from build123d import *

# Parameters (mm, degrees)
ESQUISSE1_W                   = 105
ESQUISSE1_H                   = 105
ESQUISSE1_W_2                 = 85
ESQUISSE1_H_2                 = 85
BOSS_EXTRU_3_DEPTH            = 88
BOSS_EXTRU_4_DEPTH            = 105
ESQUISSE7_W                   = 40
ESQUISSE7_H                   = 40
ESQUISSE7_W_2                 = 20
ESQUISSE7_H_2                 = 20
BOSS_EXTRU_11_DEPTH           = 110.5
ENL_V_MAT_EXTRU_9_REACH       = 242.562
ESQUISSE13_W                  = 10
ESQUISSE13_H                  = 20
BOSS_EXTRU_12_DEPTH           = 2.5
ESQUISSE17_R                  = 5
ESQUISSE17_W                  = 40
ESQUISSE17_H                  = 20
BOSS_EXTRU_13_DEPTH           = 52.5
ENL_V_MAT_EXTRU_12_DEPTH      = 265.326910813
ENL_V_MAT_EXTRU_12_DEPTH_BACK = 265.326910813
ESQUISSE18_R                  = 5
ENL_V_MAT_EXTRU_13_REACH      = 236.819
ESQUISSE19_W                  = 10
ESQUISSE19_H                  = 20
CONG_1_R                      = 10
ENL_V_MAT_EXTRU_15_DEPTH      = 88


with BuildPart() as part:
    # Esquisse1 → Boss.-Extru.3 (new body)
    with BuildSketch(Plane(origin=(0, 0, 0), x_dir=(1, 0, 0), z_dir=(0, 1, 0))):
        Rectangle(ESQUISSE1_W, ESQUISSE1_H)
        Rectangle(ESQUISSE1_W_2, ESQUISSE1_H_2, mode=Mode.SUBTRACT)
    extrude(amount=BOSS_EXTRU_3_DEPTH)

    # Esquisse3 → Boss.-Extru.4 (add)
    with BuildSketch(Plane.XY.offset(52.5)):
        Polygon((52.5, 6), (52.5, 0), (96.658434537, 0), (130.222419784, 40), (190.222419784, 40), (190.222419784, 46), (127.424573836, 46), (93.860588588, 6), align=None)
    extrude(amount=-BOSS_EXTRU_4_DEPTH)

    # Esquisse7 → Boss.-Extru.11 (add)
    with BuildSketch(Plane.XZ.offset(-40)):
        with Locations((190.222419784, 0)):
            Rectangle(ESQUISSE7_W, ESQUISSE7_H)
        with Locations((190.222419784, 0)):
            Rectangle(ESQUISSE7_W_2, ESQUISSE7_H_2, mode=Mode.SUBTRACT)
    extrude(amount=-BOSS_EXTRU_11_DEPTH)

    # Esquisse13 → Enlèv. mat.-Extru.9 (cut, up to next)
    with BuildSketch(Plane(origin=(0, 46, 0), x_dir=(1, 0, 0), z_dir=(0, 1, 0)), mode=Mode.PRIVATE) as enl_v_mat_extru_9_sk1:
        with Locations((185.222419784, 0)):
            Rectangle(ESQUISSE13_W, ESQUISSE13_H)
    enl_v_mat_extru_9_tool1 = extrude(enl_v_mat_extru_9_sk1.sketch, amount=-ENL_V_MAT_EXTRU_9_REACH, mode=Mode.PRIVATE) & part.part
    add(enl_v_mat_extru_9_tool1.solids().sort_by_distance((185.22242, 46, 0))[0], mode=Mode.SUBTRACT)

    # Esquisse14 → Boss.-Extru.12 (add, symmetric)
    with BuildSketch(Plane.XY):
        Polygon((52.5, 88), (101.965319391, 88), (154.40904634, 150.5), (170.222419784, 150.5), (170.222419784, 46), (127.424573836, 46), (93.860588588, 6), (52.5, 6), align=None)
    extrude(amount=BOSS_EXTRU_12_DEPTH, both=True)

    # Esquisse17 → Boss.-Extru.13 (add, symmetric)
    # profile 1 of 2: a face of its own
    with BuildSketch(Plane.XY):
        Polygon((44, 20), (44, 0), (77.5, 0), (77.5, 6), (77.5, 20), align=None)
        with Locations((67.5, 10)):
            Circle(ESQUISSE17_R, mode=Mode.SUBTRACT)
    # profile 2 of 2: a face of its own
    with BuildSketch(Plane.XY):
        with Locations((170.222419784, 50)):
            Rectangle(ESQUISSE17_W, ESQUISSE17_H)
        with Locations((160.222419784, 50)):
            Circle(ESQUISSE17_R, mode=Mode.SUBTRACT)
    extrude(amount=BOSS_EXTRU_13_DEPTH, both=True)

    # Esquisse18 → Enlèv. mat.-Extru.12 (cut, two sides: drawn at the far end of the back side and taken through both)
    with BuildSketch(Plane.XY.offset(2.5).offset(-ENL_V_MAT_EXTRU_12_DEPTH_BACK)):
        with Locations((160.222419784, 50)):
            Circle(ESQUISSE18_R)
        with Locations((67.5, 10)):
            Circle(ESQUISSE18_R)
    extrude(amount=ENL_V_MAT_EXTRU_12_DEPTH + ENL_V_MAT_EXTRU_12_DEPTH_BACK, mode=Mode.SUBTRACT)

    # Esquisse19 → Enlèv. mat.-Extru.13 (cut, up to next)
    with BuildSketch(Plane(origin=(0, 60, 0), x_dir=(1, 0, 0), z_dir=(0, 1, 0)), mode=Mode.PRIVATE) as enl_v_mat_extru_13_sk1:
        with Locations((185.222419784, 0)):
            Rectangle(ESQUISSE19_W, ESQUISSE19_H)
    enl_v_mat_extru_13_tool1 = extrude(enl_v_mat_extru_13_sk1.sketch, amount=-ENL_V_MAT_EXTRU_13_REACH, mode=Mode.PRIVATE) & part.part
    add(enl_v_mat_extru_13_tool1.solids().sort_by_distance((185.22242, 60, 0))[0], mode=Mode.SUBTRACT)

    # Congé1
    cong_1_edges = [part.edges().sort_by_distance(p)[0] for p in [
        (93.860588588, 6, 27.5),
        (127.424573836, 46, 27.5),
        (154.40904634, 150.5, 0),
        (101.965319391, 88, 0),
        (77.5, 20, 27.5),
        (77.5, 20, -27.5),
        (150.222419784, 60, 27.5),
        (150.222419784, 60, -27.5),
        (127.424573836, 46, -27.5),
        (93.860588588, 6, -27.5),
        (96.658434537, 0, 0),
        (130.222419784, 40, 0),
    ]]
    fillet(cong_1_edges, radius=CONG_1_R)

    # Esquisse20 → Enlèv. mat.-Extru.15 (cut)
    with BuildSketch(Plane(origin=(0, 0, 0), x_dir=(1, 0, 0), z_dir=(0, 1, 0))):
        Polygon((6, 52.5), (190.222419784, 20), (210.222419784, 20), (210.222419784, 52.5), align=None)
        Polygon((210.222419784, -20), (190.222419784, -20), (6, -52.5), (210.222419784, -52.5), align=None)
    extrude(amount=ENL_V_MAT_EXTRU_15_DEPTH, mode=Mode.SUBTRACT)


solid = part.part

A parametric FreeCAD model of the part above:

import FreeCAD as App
import Part
import Sketcher
from FreeCAD import Vector
Q = App.Units.Quantity


def edges_at(feature, points):
    """Names of the edges that pass closest to the given points."""
    edges = feature.Shape.Edges
    near = lambda p: min(range(len(edges)), key=lambda i: edges[i].distToShape(Part.Vertex(*p))[0])
    return sorted({f"Edge{near(p) + 1}" for p in points})


def add_polygon(sketch, points):
    """Adds a closed chain of lines whose ends are joined by coincident constraints."""
    first, n = sketch.GeometryCount, len(points)
    for a, b in zip(points, points[1:] + points[:1]):
        sketch.addGeometry(Part.LineSegment(App.Vector(*a, 0), App.Vector(*b, 0)), False)
    for i in range(n):
        sketch.addConstraint(Sketcher.Constraint("Coincident", first + i, 2, first + (i + 1) % n, 1))

doc = App.newDocument("Part")
body = doc.addObject("PartDesign::Body", "Body")

# Sketch on XZ plane
sketch1 = doc.addObject("Sketcher::SketchObject", "Sketch")
body.addObject(sketch1)
sketch1.AttachmentSupport = (doc.XZ_Plane, [""])
sketch1.MapMode = "FlatFace"
add_polygon(sketch1, [(-52, -52), (-52, 52), (52, 52), (52, -52)])  # lines 0-3
add_polygon(sketch1, [(42, 42), (-42, 42), (-42, -42), (42, -42)])  # lines 4-7
sketch1.addConstraint([
    Sketcher.Constraint("Vertical", 0),
    Sketcher.Constraint("Horizontal", 1),
    Sketcher.Constraint("Vertical", 2),
    Sketcher.Constraint("Horizontal", 3),
    Sketcher.Constraint("Horizontal", 4),
    Sketcher.Constraint("Vertical", 5),
    Sketcher.Constraint("Horizontal", 6),
    Sketcher.Constraint("Vertical", 7),
    Sketcher.Constraint("Symmetric", 0, 2, 2, 2, -1, 1),
    Sketcher.Constraint("Symmetric", 4, 2, 6, 2, -1, 1),
    Sketcher.Constraint("Equal", 3, 0),
    Sketcher.Constraint("Equal", 6, 5),
    Sketcher.Constraint("DistanceX", 1, 1, 1, 2, Q("105 mm")),
    Sketcher.Constraint("DistanceX", 4, 2, 4, 1, Q("85 mm")),
])
pad1 = doc.addObject("PartDesign::Pad", "Pad")
body.addObject(pad1)
pad1.Profile = sketch1
pad1.Length = 88
pad1.Reversed = True

# Sketch on XY plane
sketch2 = doc.addObject("Sketcher::SketchObject", "Sketch001")
body.addObject(sketch2)
sketch2.AttachmentSupport = (doc.XY_Plane, [""])
sketch2.MapMode = "FlatFace"
sketch2.AttachmentOffset = App.Placement(Vector(0, 0, 52.5), App.Rotation())
add_polygon(sketch2, [(52, 6), (52, 0), (97, 0), (130, 40), (190, 40), (190, 46), (127, 46), (94, 6)])  # lines 0-7
sketch2.addConstraint([
    Sketcher.Constraint("Vertical", 0),
    Sketcher.Constraint("Horizontal", 1),
    Sketcher.Constraint("Horizontal", 3),
    Sketcher.Constraint("Vertical", 4),
    Sketcher.Constraint("Horizontal", 5),
    Sketcher.Constraint("Horizontal", 7),
    Sketcher.Constraint("PointOnObject", 0, 2, -1),
    Sketcher.Constraint("Parallel", 2, 6),
    Sketcher.Constraint("Equal", 0, 4),
    Sketcher.Constraint("DistanceX", 3, 1, 3, 2, Q("60 mm")),
    Sketcher.Constraint("DistanceY", 0, 2, 0, 1, Q("6 mm")),
    Sketcher.Constraint("Angle", 2, Q("50 deg")),
    Sketcher.Constraint("DistanceY", -1, 1, 2, 2, Q("40 mm")),
    Sketcher.Constraint("DistanceX", -1, 1, 0, 2, Q("52.5 mm")),
    Sketcher.Constraint("DistanceX", 7, 2, 7, 1, Q("41.360589 mm")),
    Sketcher.Constraint("DistanceX", 1, 1, 1, 2, Q("44.158435 mm")),
])
pad2 = doc.addObject("PartDesign::Pad", "Pad001")
body.addObject(pad2)
pad2.Profile = sketch2
pad2.Length = 105
pad2.Reversed = True

# Sketch on XZ plane
sketch3 = doc.addObject("Sketcher::SketchObject", "Sketch002")
body.addObject(sketch3)
sketch3.AttachmentSupport = (doc.XZ_Plane, [""])
sketch3.MapMode = "FlatFace"
sketch3.AttachmentOffset = App.Placement(Vector(0, 0, -40), App.Rotation())
add_polygon(sketch3, [(170, 20), (170, -20), (210, -20), (210, 20)])  # lines 0-3
add_polygon(sketch3, [(200, -10), (180, -10), (180, 10), (200, 10)])  # lines 4-7
sketch3.addConstraint([
    Sketcher.Constraint("Vertical", 0),
    Sketcher.Constraint("Horizontal", 1),
    Sketcher.Constraint("Vertical", 2),
    Sketcher.Constraint("Horizontal", 3),
    Sketcher.Constraint("Horizontal", 4),
    Sketcher.Constraint("Vertical", 5),
    Sketcher.Constraint("Horizontal", 6),
    Sketcher.Constraint("Vertical", 7),
    Sketcher.Constraint("Equal", 3, 0),
    Sketcher.Constraint("Equal", 6, 5),
    Sketcher.Constraint("DistanceX", 1, 1, 1, 2, Q("40 mm")),
    Sketcher.Constraint("DistanceX", 4, 2, 4, 1, Q("20 mm")),
    Sketcher.Constraint("DistanceY", 0, 2, -1, 1, Q("20 mm")),
    Sketcher.Constraint("DistanceY", 4, 2, -1, 1, Q("10 mm")),
    Sketcher.Constraint("DistanceX", 0, 2, 4, 2, Q("10 mm")),
    Sketcher.Constraint("DistanceX", -1, 1, 0, 2, Q("170.22242 mm")),
])
pad3 = doc.addObject("PartDesign::Pad", "Pad002")
body.addObject(pad3)
pad3.Profile = sketch3
pad3.Length = 110.5
pad3.Reversed = True

# Sketch on XZ plane
sketch4 = doc.addObject("Sketcher::SketchObject", "Sketch003")
body.addObject(sketch4)
sketch4.AttachmentSupport = (doc.XZ_Plane, [""])
sketch4.MapMode = "FlatFace"
sketch4.AttachmentOffset = App.Placement(Vector(0, 0, -46), App.Rotation())
add_polygon(sketch4, [(180, -10), (180, 10), (190, 10), (190, -10)])  # lines 0-3
sketch4.addConstraint([
    Sketcher.Constraint("Vertical", 0),
    Sketcher.Constraint("Horizontal", 1),
    Sketcher.Constraint("Vertical", 2),
    Sketcher.Constraint("Horizontal", 3),
    Sketcher.Constraint("DistanceX", 1, 1, 1, 2, Q("10 mm")),
    Sketcher.Constraint("DistanceY", 0, 1, 0, 2, Q("20 mm")),
    Sketcher.Constraint("DistanceY", -1, 1, 0, 2, Q("10 mm")),
    Sketcher.Constraint("DistanceX", -1, 1, 0, 2, Q("180.22242 mm")),
])
pocket1 = doc.addObject("PartDesign::Pocket", "Pocket")
body.addObject(pocket1)
pocket1.Profile = sketch4
pocket1.Type = "UpToFirst"
pocket1.Reversed = True

# Sketch on XY plane
sketch5 = doc.addObject("Sketcher::SketchObject", "Sketch004")
body.addObject(sketch5)
sketch5.AttachmentSupport = (doc.XY_Plane, [""])
sketch5.MapMode = "FlatFace"
add_polygon(sketch5, [(102, 88), (52, 88), (52, 6), (94, 6), (127, 46), (170, 46), (170, 150), (154, 150)])  # lines 0-7
sketch5.addConstraint([
    Sketcher.Constraint("Horizontal", 0),
    Sketcher.Constraint("Vertical", 1),
    Sketcher.Constraint("Horizontal", 2),
    Sketcher.Constraint("Horizontal", 4),
    Sketcher.Constraint("Vertical", 5),
    Sketcher.Constraint("Horizontal", 6),
    Sketcher.Constraint("Parallel", 3, 7),
    Sketcher.Constraint("DistanceY", 1, 2, 1, 1, Q("82 mm")),
    Sketcher.Constraint("Angle", 3, Q("50 deg")),
    Sketcher.Constraint("DistanceY", 5, 1, 5, 2, Q("104.5 mm")),
    Sketcher.Constraint("DistanceY", -1, 1, 0, 2, Q("88 mm")),
    Sketcher.Constraint("DistanceY", -1, 1, 3, 2, Q("46 mm")),
    Sketcher.Constraint("DistanceX", -1, 1, 0, 2, Q("52.5 mm")),
    Sketcher.Constraint("DistanceX", 0, 2, 0, 1, Q("49.465319 mm")),
    Sketcher.Constraint("DistanceX", 2, 1, 2, 2, Q("41.360589 mm")),
    Sketcher.Constraint("DistanceX", 7, 2, 4, 2, Q("68.2571 mm")),
])
pad4 = doc.addObject("PartDesign::Pad", "Pad003")
body.addObject(pad4)
pad4.Profile = sketch5
pad4.Length = 5
pad4.Midplane = True

# Sketch on XY plane
sketch6 = doc.addObject("Sketcher::SketchObject", "Sketch005")
body.addObject(sketch6)
sketch6.AttachmentSupport = (doc.XY_Plane, [""])
sketch6.MapMode = "FlatFace"
add_polygon(sketch6, [(44, 20), (44, 0), (78, 0), (78, 20)])  # lines 0-3
sketch6.addGeometry(Part.Circle(Vector(68, 10, 0), Vector(0, 0, 1), 5), False)  # 4
add_polygon(sketch6, [(150, 60), (150, 40), (190, 40), (190, 60)])  # lines 5-8
sketch6.addGeometry(Part.Circle(Vector(160, 50, 0), Vector(0, 0, 1), 5), False)  # 9
sketch6.addConstraint([
    Sketcher.Constraint("Vertical", 0),
    Sketcher.Constraint("Horizontal", 1),
    Sketcher.Constraint("Vertical", 2),
    Sketcher.Constraint("Horizontal", 3),
    Sketcher.Constraint("Vertical", 5),
    Sketcher.Constraint("Horizontal", 6),
    Sketcher.Constraint("Vertical", 7),
    Sketcher.Constraint("Horizontal", 8),
    Sketcher.Constraint("Equal", 4, 9),
    Sketcher.Constraint("PointOnObject", 0, 2, -1),
    Sketcher.Constraint("Equal", 2, 5),
    Sketcher.Constraint("Diameter", 4, Q("10 mm")),
    Sketcher.Constraint("DistanceX", 6, 1, 6, 2, Q("40 mm")),
    Sketcher.Constraint("DistanceY", 0, 2, 0, 1, Q("20 mm")),
    Sketcher.Constraint("DistanceX", 1, 1, 1, 2, Q("33.5 mm")),
    Sketcher.Constraint("DistanceY", -1, 1, 4, 3, Q("10 mm")),
    Sketcher.Constraint("DistanceY", -1, 1, 9, 3, Q("50 mm")),
    Sketcher.Constraint("DistanceX", -1, 1, 0, 2, Q("44 mm")),
    Sketcher.Constraint("DistanceY", -1, 1, 5, 2, Q("40 mm")),
    Sketcher.Constraint("DistanceX", 4, 3, 1, 2, Q("10 mm")),
    Sketcher.Constraint("DistanceX", 5, 2, 9, 3, Q("10 mm")),
    Sketcher.Constraint("DistanceX", -1, 1, 9, 3, Q("160.22242 mm")),
])
pad5 = doc.addObject("PartDesign::Pad", "Pad004")
body.addObject(pad5)
pad5.Profile = sketch6
pad5.Length = 105
pad5.Midplane = True

# Sketch on XY plane
sketch7 = doc.addObject("Sketcher::SketchObject", "Sketch006")
body.addObject(sketch7)
sketch7.AttachmentSupport = (doc.XY_Plane, [""])
sketch7.MapMode = "FlatFace"
sketch7.AttachmentOffset = App.Placement(Vector(0, 0, 2.5), App.Rotation())
sketch7.addGeometry([
    Part.Circle(Vector(160, 50, 0), Vector(0, 0, 1), 5),
    Part.Circle(Vector(68, 10, 0), Vector(0, 0, 1), 5),
], False)
sketch7.addConstraint([
    Sketcher.Constraint("Equal", 0, 1),
    Sketcher.Constraint("Diameter", 0, Q("10 mm")),
    Sketcher.Constraint("DistanceY", -1, 1, 0, 3, Q("50 mm")),
    Sketcher.Constraint("DistanceY", -1, 1, 1, 3, Q("10 mm")),
    Sketcher.Constraint("DistanceX", -1, 1, 1, 3, Q("67.5 mm")),
    Sketcher.Constraint("DistanceX", -1, 1, 0, 3, Q("160.22242 mm")),
])
pocket2 = doc.addObject("PartDesign::Pocket", "Pocket001")
body.addObject(pocket2)
pocket2.Profile = sketch7
pocket2.Type = "ThroughAll"
pocket2.Midplane = True

# Sketch on XZ plane
sketch8 = doc.addObject("Sketcher::SketchObject", "Sketch007")
body.addObject(sketch8)
sketch8.AttachmentSupport = (doc.XZ_Plane, [""])
sketch8.MapMode = "FlatFace"
sketch8.AttachmentOffset = App.Placement(Vector(0, 0, -60), App.Rotation())
add_polygon(sketch8, [(180, -10), (180, 10), (190, 10), (190, -10)])  # lines 0-3
sketch8.addConstraint([
    Sketcher.Constraint("Vertical", 0),
    Sketcher.Constraint("Horizontal", 1),
    Sketcher.Constraint("Vertical", 2),
    Sketcher.Constraint("Horizontal", 3),
    Sketcher.Constraint("DistanceX", 1, 1, 1, 2, Q("10 mm")),
    Sketcher.Constraint("DistanceY", 0, 1, 0, 2, Q("20 mm")),
    Sketcher.Constraint("DistanceY", -1, 1, 0, 2, Q("10 mm")),
    Sketcher.Constraint("DistanceX", -1, 1, 0, 2, Q("180.22242 mm")),
])
pocket3 = doc.addObject("PartDesign::Pocket", "Pocket002")
body.addObject(pocket3)
pocket3.Profile = sketch8
pocket3.Type = "UpToFirst"
pocket3.Reversed = True
doc.recompute()

fillet = doc.addObject("PartDesign::Fillet", "Fillet")
body.addObject(fillet)
fillet.Base = (pocket3, edges_at(pocket3, [
    (93.861, 6, 27.5),
    (127.425, 46, 27.5),
    (154.409, 150.5, 0),
    (101.965, 88, 0),
    (77.5, 20, 27.5),
    (77.5, 20, -27.5),
    (150.222, 60, 27.5),
    (150.222, 60, -27.5),
    (127.425, 46, -27.5),
    (93.861, 6, -27.5),
    (96.658, 0, 0),
    (130.222, 40, 0),
]))
fillet.Radius = 10

# Sketch on XZ plane
sketch9 = doc.addObject("Sketcher::SketchObject", "Sketch008")
body.addObject(sketch9)
sketch9.AttachmentSupport = (doc.XZ_Plane, [""])
sketch9.MapMode = "FlatFace"
add_polygon(sketch9, [(6, -52), (190, -20), (210, -20), (210, -52)])  # lines 0-3
add_polygon(sketch9, [(210, 20), (190, 20), (6, 52), (210, 52)])  # lines 4-7
sketch9.addConstraint([
    Sketcher.Constraint("Horizontal", 1),
    Sketcher.Constraint("Vertical", 2),
    Sketcher.Constraint("Horizontal", 3),
    Sketcher.Constraint("Horizontal", 4),
    Sketcher.Constraint("Horizontal", 6),
    Sketcher.Constraint("Vertical", 7),
    Sketcher.Constraint("Symmetric", 0, 2, 4, 2, -1),
    Sketcher.Constraint("Symmetric", 3, 2, 5, 2, -1),
    Sketcher.Constraint("Vertical", 2, 2, 6, 2),
    Sketcher.Constraint("DistanceX", 1, 1, 1, 2, Q("20 mm")),
    Sketcher.Constraint("DistanceY", 2, 2, 2, 1, Q("32.5 mm")),
    Sketcher.Constraint("DistanceY", 0, 2, -1, 1, Q("20 mm")),
    Sketcher.Constraint("DistanceX", -1, 1, 3, 2, Q("6 mm")),
    Sketcher.Constraint("DistanceX", 3, 2, 3, 1, Q("204.22242 mm")),
])
pocket4 = doc.addObject("PartDesign::Pocket", "Pocket003")
body.addObject(pocket4)
pocket4.Profile = sketch9
pocket4.Length = 88

doc.recompute()
